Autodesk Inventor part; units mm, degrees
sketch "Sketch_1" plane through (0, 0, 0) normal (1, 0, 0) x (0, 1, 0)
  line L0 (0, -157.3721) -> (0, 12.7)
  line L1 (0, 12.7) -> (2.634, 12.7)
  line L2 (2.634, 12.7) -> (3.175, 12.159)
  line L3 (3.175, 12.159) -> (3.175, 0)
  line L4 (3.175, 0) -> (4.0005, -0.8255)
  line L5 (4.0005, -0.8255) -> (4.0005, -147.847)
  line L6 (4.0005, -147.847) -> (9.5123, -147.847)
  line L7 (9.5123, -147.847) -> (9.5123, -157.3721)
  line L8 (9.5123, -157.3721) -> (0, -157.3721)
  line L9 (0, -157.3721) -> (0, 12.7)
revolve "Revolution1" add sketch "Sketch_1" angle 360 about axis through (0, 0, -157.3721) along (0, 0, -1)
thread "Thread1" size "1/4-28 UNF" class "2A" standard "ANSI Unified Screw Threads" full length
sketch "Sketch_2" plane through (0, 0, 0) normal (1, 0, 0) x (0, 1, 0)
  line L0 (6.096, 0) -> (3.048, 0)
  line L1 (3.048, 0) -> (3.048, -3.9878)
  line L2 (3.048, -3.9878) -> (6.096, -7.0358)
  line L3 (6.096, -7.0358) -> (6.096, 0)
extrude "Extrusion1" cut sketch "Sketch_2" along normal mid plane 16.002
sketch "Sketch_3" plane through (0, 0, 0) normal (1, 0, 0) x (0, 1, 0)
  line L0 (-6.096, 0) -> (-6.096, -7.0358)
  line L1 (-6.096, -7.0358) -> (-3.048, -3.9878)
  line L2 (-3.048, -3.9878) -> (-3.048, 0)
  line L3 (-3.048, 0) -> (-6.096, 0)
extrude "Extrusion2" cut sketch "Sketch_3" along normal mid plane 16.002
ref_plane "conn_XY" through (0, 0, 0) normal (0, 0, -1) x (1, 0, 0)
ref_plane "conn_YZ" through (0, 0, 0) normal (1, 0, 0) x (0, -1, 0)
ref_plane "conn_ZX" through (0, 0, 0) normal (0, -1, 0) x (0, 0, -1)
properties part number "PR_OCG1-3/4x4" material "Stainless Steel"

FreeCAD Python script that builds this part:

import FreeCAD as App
import Part
import Sketcher
Q = App.Units.Quantity

doc = App.newDocument("Part")
body = doc.addObject("PartDesign::Body", "Body")

sketch1 = body.newObject("Sketcher::SketchObject", "Sketch")
sketch1.AttachmentSupport = (doc.getObject("YZ_Plane"), [""])
sketch1.MapMode = "FlatFace"
sketch1.addGeometry(Part.LineSegment(App.Vector(0, 12.7, 0), App.Vector(0, -157.4, 0)), False)
sketch1.addGeometry(Part.LineSegment(App.Vector(0, -157.4, 0), App.Vector(9.5, -157.4, 0)), False)
sketch1.addGeometry(Part.LineSegment(App.Vector(9.5, -157.4, 0), App.Vector(9.5, -147.8, 0)), False)
sketch1.addGeometry(Part.LineSegment(App.Vector(9.5, -147.8, 0), App.Vector(4, -147.8, 0)), False)
sketch1.addGeometry(Part.LineSegment(App.Vector(4, -147.8, 0), App.Vector(4, -0.8, 0)), False)
sketch1.addGeometry(Part.LineSegment(App.Vector(4, -0.8, 0), App.Vector(3.2, 0, 0)), False)
sketch1.addGeometry(Part.LineSegment(App.Vector(3.2, 0, 0), App.Vector(3.2, 12.2, 0)), False)
sketch1.addGeometry(Part.LineSegment(App.Vector(3.2, 12.2, 0), App.Vector(2.6, 12.7, 0)), False)
sketch1.addGeometry(Part.LineSegment(App.Vector(2.6, 12.7, 0), App.Vector(0, 12.7, 0)), False)
sketch1.addConstraint(Sketcher.Constraint("Coincident", 0, 2, 1, 1))
sketch1.addConstraint(Sketcher.Constraint("Coincident", 1, 2, 2, 1))
sketch1.addConstraint(Sketcher.Constraint("Coincident", 2, 2, 3, 1))
sketch1.addConstraint(Sketcher.Constraint("Coincident", 3, 2, 4, 1))
sketch1.addConstraint(Sketcher.Constraint("Coincident", 4, 2, 5, 1))
sketch1.addConstraint(Sketcher.Constraint("Coincident", 5, 2, 6, 1))
sketch1.addConstraint(Sketcher.Constraint("Coincident", 6, 2, 7, 1))
sketch1.addConstraint(Sketcher.Constraint("Coincident", 7, 2, 8, 1))
sketch1.addConstraint(Sketcher.Constraint("Coincident", 8, 2, 0, 1))
sketch1.addConstraint(Sketcher.Constraint("Vertical", 0))
sketch1.addConstraint(Sketcher.Constraint("Horizontal", 1))
sketch1.addConstraint(Sketcher.Constraint("Vertical", 2))
sketch1.addConstraint(Sketcher.Constraint("Horizontal", 3))
sketch1.addConstraint(Sketcher.Constraint("Vertical", 4))
sketch1.addConstraint(Sketcher.Constraint("Vertical", 6))
sketch1.addConstraint(Sketcher.Constraint("Horizontal", 8))
sketch1.addConstraint(Sketcher.Constraint("PointOnObject", 0, 2, -2))
sketch1.addConstraint(Sketcher.Constraint("PointOnObject", 5, 2, -1))
sketch1.addConstraint(Sketcher.Constraint("Parallel", 5, 7))
sketch1.addConstraint(Sketcher.Constraint("Angle", 5, Q("135 deg")))
sketch1.addConstraint(Sketcher.Constraint("DistanceY", -1, 1, 7, 2, Q("0.5 in")))
sketch1.addConstraint(Sketcher.Constraint("DistanceX", 3, 2, 3, 1, Q("0.217 in")))
sketch1.addConstraint(Sketcher.Constraint("DistanceY", 2, 1, 2, 2, Q("0.375 in")))
sketch1.addConstraint(Sketcher.Constraint("DistanceX", 1, 1, 1, 2, Q("0.3745 in")))
sketch1.addConstraint(Sketcher.Constraint("DistanceX", 8, 2, 8, 1, Q("0.1037 in")))
sketch1.addConstraint(Sketcher.Constraint("DistanceY", 6, 1, 6, 2, Q("0.4787 in")))
sketch1.addConstraint(Sketcher.Constraint("DistanceY", 0, 2, 0, 1, 170.072))
revolution = body.newObject("PartDesign::Revolution", "Revolution")
revolution.Profile = sketch1
revolution.ReferenceAxis = (sketch1, ["V_Axis"])
revolution.Angle = 360

sketch2 = body.newObject("Sketcher::SketchObject", "Sketch001")
sketch2.AttachmentSupport = (doc.getObject("YZ_Plane"), [""])
sketch2.MapMode = "FlatFace"
sketch2.addGeometry(Part.LineSegment(App.Vector(6.1, -7, 0), App.Vector(6.1, 0, 0)), False)
sketch2.addGeometry(Part.LineSegment(App.Vector(6.1, 0, 0), App.Vector(3, 0, 0)), False)
sketch2.addGeometry(Part.LineSegment(App.Vector(3, 0, 0), App.Vector(3, -4, 0)), False)
sketch2.addGeometry(Part.LineSegment(App.Vector(3, -4, 0), App.Vector(6.1, -7, 0)), False)
sketch2.addConstraint(Sketcher.Constraint("Coincident", 0, 2, 1, 1))
sketch2.addConstraint(Sketcher.Constraint("Coincident", 1, 2, 2, 1))
sketch2.addConstraint(Sketcher.Constraint("Coincident", 2, 2, 3, 1))
sketch2.addConstraint(Sketcher.Constraint("Coincident", 3, 2, 0, 1))
sketch2.addConstraint(Sketcher.Constraint("Vertical", 0))
sketch2.addConstraint(Sketcher.Constraint("Horizontal", 1))
sketch2.addConstraint(Sketcher.Constraint("Vertical", 2))
sketch2.addConstraint(Sketcher.Constraint("PointOnObject", 0, 2, -1))
sketch2.addConstraint(Sketcher.Constraint("Angle", 3, Q("-45 deg")))
sketch2.addConstraint(Sketcher.Constraint("DistanceX", 1, 2, 1, 1, Q("0.12 in")))
sketch2.addConstraint(Sketcher.Constraint("DistanceY", 0, 1, 0, 2, Q("0.277 in")))
sketch2.addConstraint(Sketcher.Constraint("DistanceX", -1, 1, 0, 2, Q("0.24 in")))
pocket1 = body.newObject("PartDesign::Pocket", "Pocket")
pocket1.Profile = sketch2
pocket1.Length = Q("0.63 in")
pocket1.Midplane = True

sketch3 = body.newObject("Sketcher::SketchObject", "Sketch002")
sketch3.AttachmentSupport = (doc.getObject("YZ_Plane"), [""])
sketch3.MapMode = "FlatFace"
sketch3.addGeometry(Part.LineSegment(App.Vector(-3, 0, 0), App.Vector(-6.1, 0, 0)), False)
sketch3.addGeometry(Part.LineSegment(App.Vector(-6.1, 0, 0), App.Vector(-6.1, -7, 0)), False)
sketch3.addGeometry(Part.LineSegment(App.Vector(-6.1, -7, 0), App.Vector(-3, -4, 0)), False)
sketch3.addGeometry(Part.LineSegment(App.Vector(-3, -4, 0), App.Vector(-3, 0, 0)), False)
sketch3.addConstraint(Sketcher.Constraint("Coincident", 0, 2, 1, 1))
sketch3.addConstraint(Sketcher.Constraint("Coincident", 1, 2, 2, 1))
sketch3.addConstraint(Sketcher.Constraint("Coincident", 2, 2, 3, 1))
sketch3.addConstraint(Sketcher.Constraint("Coincident", 3, 2, 0, 1))
sketch3.addConstraint(Sketcher.Constraint("Horizontal", 0))
sketch3.addConstraint(Sketcher.Constraint("Vertical", 1))
sketch3.addConstraint(Sketcher.Constraint("Vertical", 3))
sketch3.addConstraint(Sketcher.Constraint("PointOnObject", 0, 2, -1))
sketch3.addConstraint(Sketcher.Constraint("Angle", 2, Q("45 deg")))
sketch3.addConstraint(Sketcher.Constraint("DistanceX", 0, 2, 0, 1, Q("0.12 in")))
sketch3.addConstraint(Sketcher.Constraint("DistanceY", 1, 2, 1, 1, Q("0.277 in")))
sketch3.addConstraint(Sketcher.Constraint("DistanceX", 0, 2, -1, 1, Q("0.24 in")))
pocket2 = body.newObject("PartDesign::Pocket", "Pocket001")
pocket2.Profile = sketch3
pocket2.Length = Q("0.63 in")
pocket2.Midplane = True

doc.recompute()
